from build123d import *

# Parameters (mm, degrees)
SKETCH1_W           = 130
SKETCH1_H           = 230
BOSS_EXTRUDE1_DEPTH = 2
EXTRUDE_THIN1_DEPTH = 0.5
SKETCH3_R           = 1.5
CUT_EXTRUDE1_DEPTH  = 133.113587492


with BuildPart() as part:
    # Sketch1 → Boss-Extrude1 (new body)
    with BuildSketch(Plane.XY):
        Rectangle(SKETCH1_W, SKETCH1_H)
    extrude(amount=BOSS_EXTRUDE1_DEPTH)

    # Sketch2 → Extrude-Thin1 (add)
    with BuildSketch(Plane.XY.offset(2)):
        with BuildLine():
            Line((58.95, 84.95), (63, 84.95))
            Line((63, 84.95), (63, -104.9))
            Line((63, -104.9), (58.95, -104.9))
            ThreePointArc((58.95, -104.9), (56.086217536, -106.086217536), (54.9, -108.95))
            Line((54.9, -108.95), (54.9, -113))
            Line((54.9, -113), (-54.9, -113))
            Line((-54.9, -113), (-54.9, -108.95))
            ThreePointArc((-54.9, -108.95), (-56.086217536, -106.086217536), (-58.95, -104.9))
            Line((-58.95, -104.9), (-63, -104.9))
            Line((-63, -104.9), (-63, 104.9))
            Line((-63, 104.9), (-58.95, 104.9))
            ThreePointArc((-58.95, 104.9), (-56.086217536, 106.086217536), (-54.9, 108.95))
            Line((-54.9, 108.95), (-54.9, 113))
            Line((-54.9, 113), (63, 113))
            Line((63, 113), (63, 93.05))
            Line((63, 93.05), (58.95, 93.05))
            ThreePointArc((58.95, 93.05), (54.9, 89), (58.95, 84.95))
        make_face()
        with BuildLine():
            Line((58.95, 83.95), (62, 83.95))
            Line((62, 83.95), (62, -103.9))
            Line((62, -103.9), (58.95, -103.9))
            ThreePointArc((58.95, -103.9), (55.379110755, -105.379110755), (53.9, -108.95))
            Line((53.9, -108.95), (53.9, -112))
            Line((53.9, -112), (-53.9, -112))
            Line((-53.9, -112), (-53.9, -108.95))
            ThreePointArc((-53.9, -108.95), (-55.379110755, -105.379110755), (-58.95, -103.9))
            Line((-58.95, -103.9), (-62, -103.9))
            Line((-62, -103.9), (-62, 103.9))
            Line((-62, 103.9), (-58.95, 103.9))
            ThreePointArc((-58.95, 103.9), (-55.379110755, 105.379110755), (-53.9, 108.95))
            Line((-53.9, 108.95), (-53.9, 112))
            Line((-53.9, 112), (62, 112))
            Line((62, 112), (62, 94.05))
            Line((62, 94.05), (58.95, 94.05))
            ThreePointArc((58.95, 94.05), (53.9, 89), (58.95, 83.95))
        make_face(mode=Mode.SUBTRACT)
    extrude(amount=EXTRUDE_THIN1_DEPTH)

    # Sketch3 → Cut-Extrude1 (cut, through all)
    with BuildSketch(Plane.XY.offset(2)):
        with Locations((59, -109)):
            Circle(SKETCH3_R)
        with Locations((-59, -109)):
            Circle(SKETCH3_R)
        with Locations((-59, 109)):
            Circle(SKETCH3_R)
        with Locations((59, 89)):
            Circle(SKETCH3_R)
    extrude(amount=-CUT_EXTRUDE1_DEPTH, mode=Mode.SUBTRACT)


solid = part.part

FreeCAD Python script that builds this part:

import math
import FreeCAD as App
import Part
import Sketcher
from FreeCAD import Vector


def add_polygon(sketch, points):
    """Adds a closed chain of lines whose ends are joined by coincident constraints."""
    first, n = sketch.GeometryCount, len(points)
    for a, b in zip(points, points[1:] + points[:1]):
        sketch.addGeometry(Part.LineSegment(App.Vector(*a, 0), App.Vector(*b, 0)), False)
    for i in range(n):
        sketch.addConstraint(Sketcher.Constraint("Coincident", first + i, 2, first + (i + 1) % n, 1))

doc = App.newDocument("Part")
body = doc.addObject("PartDesign::Body", "Body")

# Sketch on XY plane
sketch1 = body.newObject("Sketcher::SketchObject", "Sketch")
sketch1.AttachmentSupport = (doc.getObject("XY_Plane"), [""])
sketch1.MapMode = "FlatFace"
add_polygon(sketch1, [(-65, 115), (-65, -115), (65, -115), (65, 115)])  # lines 0-3
sketch1.addConstraint(Sketcher.Constraint("Vertical", 0))
sketch1.addConstraint(Sketcher.Constraint("Horizontal", 1))
sketch1.addConstraint(Sketcher.Constraint("Vertical", 2))
sketch1.addConstraint(Sketcher.Constraint("Horizontal", 3))
sketch1.addConstraint(Sketcher.Constraint("Symmetric", 0, 2, 2, 2, -1, 1))
sketch1.addConstraint(Sketcher.Constraint("DistanceX", 1, 1, 1, 2, 130.0))
sketch1.addConstraint(Sketcher.Constraint("DistanceY", 0, 2, 0, 1, 230.0))
pad1 = body.newObject("PartDesign::Pad", "Pad")
pad1.Profile = sketch1
pad1.Length = 2

# Sketch on XY plane
sketch2 = body.newObject("Sketcher::SketchObject", "Sketch001")
sketch2.AttachmentSupport = (doc.getObject("XY_Plane"), [""])
sketch2.MapMode = "FlatFace"
sketch2.AttachmentOffset = App.Placement(Vector(0, 0, 2), App.Rotation())
sketch2.addGeometry(Part.LineSegment(Vector(63, 84.95, 0), Vector(58.95, 84.95, 0)), False)
sketch2.addGeometry(Part.ArcOfCircle(Part.Circle(Vector(58.95, 89, 0), Vector(0, 0, 1), 4.05), math.radians(90), math.radians(270)), False)
sketch2.addGeometry(Part.LineSegment(Vector(58.95, 93.05, 0), Vector(63, 93.05, 0)), False)
sketch2.addGeometry(Part.LineSegment(Vector(63, 93.05, 0), Vector(63, 113, 0)), False)
sketch2.addGeometry(Part.LineSegment(Vector(63, 113, 0), Vector(-54.9, 113, 0)), False)
sketch2.addGeometry(Part.LineSegment(Vector(-54.9, 113, 0), Vector(-54.9, 108.95, 0)), False)
sketch2.addGeometry(Part.ArcOfCircle(Part.Circle(Vector(-58.95, 108.95, 0), Vector(0, 0, 1), 4.05), math.radians(-90), math.radians(0)), False)
sketch2.addGeometry(Part.LineSegment(Vector(-58.95, 104.9, 0), Vector(-63, 104.9, 0)), False)
sketch2.addGeometry(Part.LineSegment(Vector(-63, 104.9, 0), Vector(-63, -104.9, 0)), False)
sketch2.addGeometry(Part.LineSegment(Vector(-63, -104.9, 0), Vector(-58.95, -104.9, 0)), False)
sketch2.addGeometry(Part.ArcOfCircle(Part.Circle(Vector(-58.95, -108.95, 0), Vector(0, 0, 1), 4.05), math.radians(0), math.radians(90)), False)
sketch2.addGeometry(Part.LineSegment(Vector(-54.9, -108.95, 0), Vector(-54.9, -113, 0)), False)
sketch2.addGeometry(Part.LineSegment(Vector(-54.9, -113, 0), Vector(54.9, -113, 0)), False)
sketch2.addGeometry(Part.LineSegment(Vector(54.9, -113, 0), Vector(54.9, -108.95, 0)), False)
sketch2.addGeometry(Part.ArcOfCircle(Part.Circle(Vector(58.95, -108.95, 0), Vector(0, 0, 1), 4.05), math.radians(90), math.radians(180)), False)
sketch2.addGeometry(Part.LineSegment(Vector(58.95, -104.9, 0), Vector(63, -104.9, 0)), False)
sketch2.addGeometry(Part.LineSegment(Vector(63, -104.9, 0), Vector(63, 84.95, 0)), False)
sketch2.addGeometry(Part.LineSegment(Vector(58.95, 83.95, 0), Vector(62, 83.95, 0)), False)
sketch2.addGeometry(Part.LineSegment(Vector(62, 83.95, 0), Vector(62, -103.9, 0)), False)
sketch2.addGeometry(Part.LineSegment(Vector(62, -103.9, 0), Vector(58.95, -103.9, 0)), False)
sketch2.addGeometry(Part.ArcOfCircle(Part.Circle(Vector(58.95, -108.95, 0), Vector(0, 0, 1), 5.05), math.radians(90), math.radians(180)), False)
sketch2.addGeometry(Part.LineSegment(Vector(53.9, -108.95, 0), Vector(53.9, -112, 0)), False)
sketch2.addGeometry(Part.LineSegment(Vector(53.9, -112, 0), Vector(-53.9, -112, 0)), False)
sketch2.addGeometry(Part.LineSegment(Vector(-53.9, -112, 0), Vector(-53.9, -108.95, 0)), False)
sketch2.addGeometry(Part.ArcOfCircle(Part.Circle(Vector(-58.95, -108.95, 0), Vector(0, 0, 1), 5.05), math.radians(0), math.radians(90)), False)
sketch2.addGeometry(Part.LineSegment(Vector(-58.95, -103.9, 0), Vector(-62, -103.9, 0)), False)
sketch2.addGeometry(Part.LineSegment(Vector(-62, -103.9, 0), Vector(-62, 103.9, 0)), False)
sketch2.addGeometry(Part.LineSegment(Vector(-62, 103.9, 0), Vector(-58.95, 103.9, 0)), False)
sketch2.addGeometry(Part.ArcOfCircle(Part.Circle(Vector(-58.95, 108.95, 0), Vector(0, 0, 1), 5.05), math.radians(-90), math.radians(0)), False)
sketch2.addGeometry(Part.LineSegment(Vector(-53.9, 108.95, 0), Vector(-53.9, 112, 0)), False)
sketch2.addGeometry(Part.LineSegment(Vector(-53.9, 112, 0), Vector(62, 112, 0)), False)
sketch2.addGeometry(Part.LineSegment(Vector(62, 112, 0), Vector(62, 94.05, 0)), False)
sketch2.addGeometry(Part.LineSegment(Vector(62, 94.05, 0), Vector(58.95, 94.05, 0)), False)
sketch2.addGeometry(Part.ArcOfCircle(Part.Circle(Vector(58.95, 89, 0), Vector(0, 0, 1), 5.05), math.radians(90), math.radians(270)), False)
sketch2.addConstraint(Sketcher.Constraint("Tangent", 0, 2, 1, 2))
sketch2.addConstraint(Sketcher.Constraint("Tangent", 1, 1, 2, 1))
sketch2.addConstraint(Sketcher.Constraint("Coincident", 2, 2, 3, 1))
sketch2.addConstraint(Sketcher.Constraint("Coincident", 3, 2, 4, 1))
sketch2.addConstraint(Sketcher.Constraint("Coincident", 4, 2, 5, 1))
sketch2.addConstraint(Sketcher.Constraint("Tangent", 5, 2, 6, 2))
sketch2.addConstraint(Sketcher.Constraint("Tangent", 6, 1, 7, 1))
sketch2.addConstraint(Sketcher.Constraint("Coincident", 7, 2, 8, 1))
sketch2.addConstraint(Sketcher.Constraint("Coincident", 8, 2, 9, 1))
sketch2.addConstraint(Sketcher.Constraint("Tangent", 9, 2, 10, 2))
sketch2.addConstraint(Sketcher.Constraint("Tangent", 10, 1, 11, 1))
sketch2.addConstraint(Sketcher.Constraint("Coincident", 11, 2, 12, 1))
sketch2.addConstraint(Sketcher.Constraint("Coincident", 12, 2, 13, 1))
sketch2.addConstraint(Sketcher.Constraint("Tangent", 13, 2, 14, 2))
sketch2.addConstraint(Sketcher.Constraint("Tangent", 14, 1, 15, 1))
sketch2.addConstraint(Sketcher.Constraint("Coincident", 15, 2, 16, 1))
sketch2.addConstraint(Sketcher.Constraint("Coincident", 16, 2, 0, 1))
sketch2.addConstraint(Sketcher.Constraint("Coincident", 17, 2, 18, 1))
sketch2.addConstraint(Sketcher.Constraint("Coincident", 18, 2, 19, 1))
sketch2.addConstraint(Sketcher.Constraint("Tangent", 19, 2, 20, 1))
sketch2.addConstraint(Sketcher.Constraint("Tangent", 20, 2, 21, 1))
sketch2.addConstraint(Sketcher.Constraint("Coincident", 21, 2, 22, 1))
sketch2.addConstraint(Sketcher.Constraint("Coincident", 22, 2, 23, 1))
sketch2.addConstraint(Sketcher.Constraint("Tangent", 23, 2, 24, 1))
sketch2.addConstraint(Sketcher.Constraint("Tangent", 24, 2, 25, 1))
sketch2.addConstraint(Sketcher.Constraint("Coincident", 25, 2, 26, 1))
sketch2.addConstraint(Sketcher.Constraint("Coincident", 26, 2, 27, 1))
sketch2.addConstraint(Sketcher.Constraint("Tangent", 27, 2, 28, 1))
sketch2.addConstraint(Sketcher.Constraint("Tangent", 28, 2, 29, 1))
sketch2.addConstraint(Sketcher.Constraint("Coincident", 29, 2, 30, 1))
sketch2.addConstraint(Sketcher.Constraint("Coincident", 30, 2, 31, 1))
sketch2.addConstraint(Sketcher.Constraint("Coincident", 31, 2, 32, 1))
sketch2.addConstraint(Sketcher.Constraint("Tangent", 32, 2, 33, 1))
sketch2.addConstraint(Sketcher.Constraint("Tangent", 33, 2, 17, 1))
sketch2.addConstraint(Sketcher.Constraint("Horizontal", 0))
sketch2.addConstraint(Sketcher.Constraint("Horizontal", 2))
sketch2.addConstraint(Sketcher.Constraint("Vertical", 3))
sketch2.addConstraint(Sketcher.Constraint("Horizontal", 4))
sketch2.addConstraint(Sketcher.Constraint("Vertical", 5))
sketch2.addConstraint(Sketcher.Constraint("Horizontal", 7))
sketch2.addConstraint(Sketcher.Constraint("Vertical", 8))
sketch2.addConstraint(Sketcher.Constraint("Horizontal", 9))
sketch2.addConstraint(Sketcher.Constraint("Vertical", 11))
sketch2.addConstraint(Sketcher.Constraint("Horizontal", 12))
sketch2.addConstraint(Sketcher.Constraint("Vertical", 13))
sketch2.addConstraint(Sketcher.Constraint("Horizontal", 15))
sketch2.addConstraint(Sketcher.Constraint("Vertical", 16))
sketch2.addConstraint(Sketcher.Constraint("Horizontal", 17))
sketch2.addConstraint(Sketcher.Constraint("Vertical", 18))
sketch2.addConstraint(Sketcher.Constraint("Horizontal", 19))
sketch2.addConstraint(Sketcher.Constraint("Vertical", 21))
sketch2.addConstraint(Sketcher.Constraint("Horizontal", 22))
sketch2.addConstraint(Sketcher.Constraint("Vertical", 23))
sketch2.addConstraint(Sketcher.Constraint("Horizontal", 25))
sketch2.addConstraint(Sketcher.Constraint("Vertical", 26))
sketch2.addConstraint(Sketcher.Constraint("Horizontal", 27))
sketch2.addConstraint(Sketcher.Constraint("Vertical", 29))
sketch2.addConstraint(Sketcher.Constraint("Horizontal", 30))
sketch2.addConstraint(Sketcher.Constraint("Vertical", 31))
sketch2.addConstraint(Sketcher.Constraint("Horizontal", 32))
sketch2.addConstraint(Sketcher.Constraint("Coincident", 20, 3, 14, 3))
sketch2.addConstraint(Sketcher.Constraint("Coincident", 24, 3, 10, 3))
sketch2.addConstraint(Sketcher.Constraint("Coincident", 28, 3, 6, 3))
sketch2.addConstraint(Sketcher.Constraint("Coincident", 33, 3, 1, 3))
sketch2.addConstraint(Sketcher.Constraint("Equal", 1, 6))
sketch2.addConstraint(Sketcher.Constraint("Equal", 6, 10))
sketch2.addConstraint(Sketcher.Constraint("Equal", 10, 14))
sketch2.addConstraint(Sketcher.Constraint("Equal", 20, 24))
sketch2.addConstraint(Sketcher.Constraint("Equal", 24, 28))
sketch2.addConstraint(Sketcher.Constraint("Equal", 28, 33))
sketch2.addConstraint(Sketcher.Constraint("Symmetric", 6, 3, 14, 3, -1, 1))
sketch2.addConstraint(Sketcher.Constraint("Symmetric", 10, 3, 14, 3, -2))
sketch2.addConstraint(Sketcher.Constraint("Vertical", 1, 3, 14, 3))
sketch2.addConstraint(Sketcher.Constraint("Vertical", 3, 2, 15, 2))
sketch2.addConstraint(Sketcher.Constraint("Vertical", 18, 2, 30, 2))
sketch2.addConstraint(Sketcher.Constraint("Equal", 2, 7))
sketch2.addConstraint(Sketcher.Constraint("Equal", 19, 25))
sketch2.addConstraint(Sketcher.Constraint("Equal", 15, 5))
sketch2.addConstraint(Sketcher.Constraint("Equal", 5, 11))
sketch2.addConstraint(Sketcher.Constraint("Equal", 32, 21))
sketch2.addConstraint(Sketcher.Constraint("Equal", 23, 29))
sketch2.addConstraint(Sketcher.Constraint("Radius", 1, 4.05))
sketch2.addConstraint(Sketcher.Constraint("Radius", 20, 5.05))
sketch2.addConstraint(Sketcher.Constraint("DistanceX", 4, 2, 4, 1, 117.9))
sketch2.addConstraint(Sketcher.Constraint("DistanceX", 12, 1, 12, 2, 109.8))
sketch2.addConstraint(Sketcher.Constraint("DistanceX", 30, 1, 30, 2, 115.9))
sketch2.addConstraint(Sketcher.Constraint("DistanceY", 8, 2, 8, 1, 209.8))
sketch2.addConstraint(Sketcher.Constraint("DistanceY", -1, 1, 1, 3, 89.0))
pad2 = body.newObject("PartDesign::Pad", "Pad001")
pad2.Profile = sketch2
pad2.Length = 0.5

# Sketch on XY plane
sketch3 = body.newObject("Sketcher::SketchObject", "Sketch002")
sketch3.AttachmentSupport = (doc.getObject("XY_Plane"), [""])
sketch3.MapMode = "FlatFace"
sketch3.AttachmentOffset = App.Placement(Vector(0, 0, 2), App.Rotation())
sketch3.addGeometry(Part.Circle(Vector(59, -109, 0), Vector(0, 0, 1), 1.5), False)
sketch3.addGeometry(Part.Circle(Vector(-59, -109, 0), Vector(0, 0, 1), 1.5), False)
sketch3.addGeometry(Part.Circle(Vector(-59, 109, 0), Vector(0, 0, 1), 1.5), False)
sketch3.addGeometry(Part.Circle(Vector(59, 89, 0), Vector(0, 0, 1), 1.5), False)
sketch3.addConstraint(Sketcher.Constraint("Equal", 0, 1))
sketch3.addConstraint(Sketcher.Constraint("Equal", 1, 2))
sketch3.addConstraint(Sketcher.Constraint("Equal", 2, 3))
sketch3.addConstraint(Sketcher.Constraint("Symmetric", 0, 3, 2, 3, -1, 1))
sketch3.addConstraint(Sketcher.Constraint("Symmetric", 0, 3, 1, 3, -2))
sketch3.addConstraint(Sketcher.Constraint("Vertical", 0, 3, 3, 3))
sketch3.addConstraint(Sketcher.Constraint("Diameter", 0, 3.0))
sketch3.addConstraint(Sketcher.Constraint("DistanceX", -1, 1, 0, 3, 59.0))
sketch3.addConstraint(Sketcher.Constraint("DistanceY", 0, 3, -1, 1, 109.0))
sketch3.addConstraint(Sketcher.Constraint("DistanceY", -1, 1, 3, 3, 89.0))
pocket1 = body.newObject("PartDesign::Pocket", "Pocket")
pocket1.Profile = sketch3
pocket1.Type = "ThroughAll"

doc.recompute()
